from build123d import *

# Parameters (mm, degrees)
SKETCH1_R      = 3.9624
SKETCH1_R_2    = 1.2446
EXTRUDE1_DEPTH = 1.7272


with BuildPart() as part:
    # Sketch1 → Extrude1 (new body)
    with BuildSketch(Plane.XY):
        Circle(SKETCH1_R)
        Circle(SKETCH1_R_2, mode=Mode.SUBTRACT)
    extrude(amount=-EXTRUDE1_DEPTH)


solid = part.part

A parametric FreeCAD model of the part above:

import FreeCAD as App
import Part
import Sketcher

V = App.Vector
Q = App.Units.Quantity

doc = App.newDocument("Part")
body = doc.addObject("PartDesign::Body", "Body")

# Sketch on XY plane
sketch1 = body.newObject("Sketcher::SketchObject", "Sketch")
sketch1.AttachmentSupport = (doc.getObject("XY_Plane"), [""])
sketch1.MapMode = "FlatFace"
sketch1.addGeometry(Part.Circle(V(0, 0, 0), V(0, 0, 1), 3.9624), False)
sketch1.addGeometry(Part.Circle(V(0, 0, 0), V(0, 0, 1), 1.2446), False)
sketch1.addConstraint(Sketcher.Constraint("Coincident", 0, 3, -1, 1))
sketch1.addConstraint(Sketcher.Constraint("Coincident", 1, 3, -1, 1))
sketch1.addConstraint(Sketcher.Constraint("Diameter", 0, Q("0.312 in")))
sketch1.addConstraint(Sketcher.Constraint("Diameter", 1, Q("0.098 in")))
pad1 = body.newObject("PartDesign::Pad", "Pad")
pad1.Profile = sketch1
pad1.Length = Q("0.068 in")
pad1.Reversed = True

doc.recompute()
